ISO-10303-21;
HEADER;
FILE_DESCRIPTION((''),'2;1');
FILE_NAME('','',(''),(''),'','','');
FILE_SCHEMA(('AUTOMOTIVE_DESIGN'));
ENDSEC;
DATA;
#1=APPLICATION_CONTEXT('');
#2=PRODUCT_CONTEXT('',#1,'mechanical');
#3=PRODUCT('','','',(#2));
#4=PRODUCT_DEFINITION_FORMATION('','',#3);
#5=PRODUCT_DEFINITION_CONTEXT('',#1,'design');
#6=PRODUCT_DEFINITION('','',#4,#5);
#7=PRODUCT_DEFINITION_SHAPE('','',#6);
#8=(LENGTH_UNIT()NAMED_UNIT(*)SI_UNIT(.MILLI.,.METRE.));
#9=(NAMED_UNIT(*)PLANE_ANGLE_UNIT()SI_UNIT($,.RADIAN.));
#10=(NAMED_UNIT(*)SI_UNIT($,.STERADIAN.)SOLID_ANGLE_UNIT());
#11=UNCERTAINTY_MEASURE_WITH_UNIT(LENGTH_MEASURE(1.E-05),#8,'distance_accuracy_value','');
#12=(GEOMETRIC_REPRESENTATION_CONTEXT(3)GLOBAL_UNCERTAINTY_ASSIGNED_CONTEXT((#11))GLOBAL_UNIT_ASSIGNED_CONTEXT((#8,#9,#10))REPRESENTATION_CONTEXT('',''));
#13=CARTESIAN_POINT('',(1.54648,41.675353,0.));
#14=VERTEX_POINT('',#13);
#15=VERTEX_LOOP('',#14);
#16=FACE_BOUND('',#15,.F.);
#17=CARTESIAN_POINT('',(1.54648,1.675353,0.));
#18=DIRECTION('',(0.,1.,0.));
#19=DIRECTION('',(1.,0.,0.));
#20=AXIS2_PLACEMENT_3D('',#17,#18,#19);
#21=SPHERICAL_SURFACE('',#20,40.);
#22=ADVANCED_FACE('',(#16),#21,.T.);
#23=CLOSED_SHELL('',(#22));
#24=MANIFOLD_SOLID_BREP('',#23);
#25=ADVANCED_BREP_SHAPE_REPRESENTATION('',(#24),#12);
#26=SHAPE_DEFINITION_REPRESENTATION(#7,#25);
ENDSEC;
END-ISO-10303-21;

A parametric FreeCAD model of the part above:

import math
import FreeCAD as App
import Part
import Sketcher

doc = App.newDocument("Part")
body = doc.addObject("PartDesign::Body", "Body")

# Sketch on XY plane
sketch1 = body.newObject("Sketcher::SketchObject", "Sketch")
sketch1.AttachmentSupport = (doc.getObject("XY_Plane"), [""])
sketch1.MapMode = "FlatFace"
sketch1.addGeometry([
    Part.LineSegment(App.Vector(2, 42, 0), App.Vector(2, -38, 0)),
    Part.ArcOfCircle(Part.Circle(App.Vector(2, 2, 0), App.Vector(0, 0, 1), 40), math.radians(-90), math.radians(90)),
], False)
sketch1.addGeometry(Part.LineSegment(App.Vector(2, 42, 0), App.Vector(2, -38, 0)), True)  # axis
sketch1.addConstraint([
    Sketcher.Constraint("Coincident", 0, 1, 1, 2),
    Sketcher.Constraint("Coincident", 1, 1, 0, 2),
    Sketcher.Constraint("Vertical", 0),
    Sketcher.Constraint("Vertical", 2),
    Sketcher.Constraint("Coincident", 2, 1, 0, 1),
    Sketcher.Constraint("Vertical", 1, 3, 0, 1),
    Sketcher.Constraint("Equal", 0, 2),
    Sketcher.Constraint("Radius", 1, 40.0),
    Sketcher.Constraint("DistanceX", -1, 1, 1, 3, 1.54648),
    Sketcher.Constraint("DistanceY", -1, 1, 1, 3, 1.675353),
])
revolution = body.newObject("PartDesign::Revolution", "Revolution")
revolution.Profile = sketch1
revolution.ReferenceAxis = (sketch1, ["Axis0"])
revolution.Angle = 360

doc.recompute()
